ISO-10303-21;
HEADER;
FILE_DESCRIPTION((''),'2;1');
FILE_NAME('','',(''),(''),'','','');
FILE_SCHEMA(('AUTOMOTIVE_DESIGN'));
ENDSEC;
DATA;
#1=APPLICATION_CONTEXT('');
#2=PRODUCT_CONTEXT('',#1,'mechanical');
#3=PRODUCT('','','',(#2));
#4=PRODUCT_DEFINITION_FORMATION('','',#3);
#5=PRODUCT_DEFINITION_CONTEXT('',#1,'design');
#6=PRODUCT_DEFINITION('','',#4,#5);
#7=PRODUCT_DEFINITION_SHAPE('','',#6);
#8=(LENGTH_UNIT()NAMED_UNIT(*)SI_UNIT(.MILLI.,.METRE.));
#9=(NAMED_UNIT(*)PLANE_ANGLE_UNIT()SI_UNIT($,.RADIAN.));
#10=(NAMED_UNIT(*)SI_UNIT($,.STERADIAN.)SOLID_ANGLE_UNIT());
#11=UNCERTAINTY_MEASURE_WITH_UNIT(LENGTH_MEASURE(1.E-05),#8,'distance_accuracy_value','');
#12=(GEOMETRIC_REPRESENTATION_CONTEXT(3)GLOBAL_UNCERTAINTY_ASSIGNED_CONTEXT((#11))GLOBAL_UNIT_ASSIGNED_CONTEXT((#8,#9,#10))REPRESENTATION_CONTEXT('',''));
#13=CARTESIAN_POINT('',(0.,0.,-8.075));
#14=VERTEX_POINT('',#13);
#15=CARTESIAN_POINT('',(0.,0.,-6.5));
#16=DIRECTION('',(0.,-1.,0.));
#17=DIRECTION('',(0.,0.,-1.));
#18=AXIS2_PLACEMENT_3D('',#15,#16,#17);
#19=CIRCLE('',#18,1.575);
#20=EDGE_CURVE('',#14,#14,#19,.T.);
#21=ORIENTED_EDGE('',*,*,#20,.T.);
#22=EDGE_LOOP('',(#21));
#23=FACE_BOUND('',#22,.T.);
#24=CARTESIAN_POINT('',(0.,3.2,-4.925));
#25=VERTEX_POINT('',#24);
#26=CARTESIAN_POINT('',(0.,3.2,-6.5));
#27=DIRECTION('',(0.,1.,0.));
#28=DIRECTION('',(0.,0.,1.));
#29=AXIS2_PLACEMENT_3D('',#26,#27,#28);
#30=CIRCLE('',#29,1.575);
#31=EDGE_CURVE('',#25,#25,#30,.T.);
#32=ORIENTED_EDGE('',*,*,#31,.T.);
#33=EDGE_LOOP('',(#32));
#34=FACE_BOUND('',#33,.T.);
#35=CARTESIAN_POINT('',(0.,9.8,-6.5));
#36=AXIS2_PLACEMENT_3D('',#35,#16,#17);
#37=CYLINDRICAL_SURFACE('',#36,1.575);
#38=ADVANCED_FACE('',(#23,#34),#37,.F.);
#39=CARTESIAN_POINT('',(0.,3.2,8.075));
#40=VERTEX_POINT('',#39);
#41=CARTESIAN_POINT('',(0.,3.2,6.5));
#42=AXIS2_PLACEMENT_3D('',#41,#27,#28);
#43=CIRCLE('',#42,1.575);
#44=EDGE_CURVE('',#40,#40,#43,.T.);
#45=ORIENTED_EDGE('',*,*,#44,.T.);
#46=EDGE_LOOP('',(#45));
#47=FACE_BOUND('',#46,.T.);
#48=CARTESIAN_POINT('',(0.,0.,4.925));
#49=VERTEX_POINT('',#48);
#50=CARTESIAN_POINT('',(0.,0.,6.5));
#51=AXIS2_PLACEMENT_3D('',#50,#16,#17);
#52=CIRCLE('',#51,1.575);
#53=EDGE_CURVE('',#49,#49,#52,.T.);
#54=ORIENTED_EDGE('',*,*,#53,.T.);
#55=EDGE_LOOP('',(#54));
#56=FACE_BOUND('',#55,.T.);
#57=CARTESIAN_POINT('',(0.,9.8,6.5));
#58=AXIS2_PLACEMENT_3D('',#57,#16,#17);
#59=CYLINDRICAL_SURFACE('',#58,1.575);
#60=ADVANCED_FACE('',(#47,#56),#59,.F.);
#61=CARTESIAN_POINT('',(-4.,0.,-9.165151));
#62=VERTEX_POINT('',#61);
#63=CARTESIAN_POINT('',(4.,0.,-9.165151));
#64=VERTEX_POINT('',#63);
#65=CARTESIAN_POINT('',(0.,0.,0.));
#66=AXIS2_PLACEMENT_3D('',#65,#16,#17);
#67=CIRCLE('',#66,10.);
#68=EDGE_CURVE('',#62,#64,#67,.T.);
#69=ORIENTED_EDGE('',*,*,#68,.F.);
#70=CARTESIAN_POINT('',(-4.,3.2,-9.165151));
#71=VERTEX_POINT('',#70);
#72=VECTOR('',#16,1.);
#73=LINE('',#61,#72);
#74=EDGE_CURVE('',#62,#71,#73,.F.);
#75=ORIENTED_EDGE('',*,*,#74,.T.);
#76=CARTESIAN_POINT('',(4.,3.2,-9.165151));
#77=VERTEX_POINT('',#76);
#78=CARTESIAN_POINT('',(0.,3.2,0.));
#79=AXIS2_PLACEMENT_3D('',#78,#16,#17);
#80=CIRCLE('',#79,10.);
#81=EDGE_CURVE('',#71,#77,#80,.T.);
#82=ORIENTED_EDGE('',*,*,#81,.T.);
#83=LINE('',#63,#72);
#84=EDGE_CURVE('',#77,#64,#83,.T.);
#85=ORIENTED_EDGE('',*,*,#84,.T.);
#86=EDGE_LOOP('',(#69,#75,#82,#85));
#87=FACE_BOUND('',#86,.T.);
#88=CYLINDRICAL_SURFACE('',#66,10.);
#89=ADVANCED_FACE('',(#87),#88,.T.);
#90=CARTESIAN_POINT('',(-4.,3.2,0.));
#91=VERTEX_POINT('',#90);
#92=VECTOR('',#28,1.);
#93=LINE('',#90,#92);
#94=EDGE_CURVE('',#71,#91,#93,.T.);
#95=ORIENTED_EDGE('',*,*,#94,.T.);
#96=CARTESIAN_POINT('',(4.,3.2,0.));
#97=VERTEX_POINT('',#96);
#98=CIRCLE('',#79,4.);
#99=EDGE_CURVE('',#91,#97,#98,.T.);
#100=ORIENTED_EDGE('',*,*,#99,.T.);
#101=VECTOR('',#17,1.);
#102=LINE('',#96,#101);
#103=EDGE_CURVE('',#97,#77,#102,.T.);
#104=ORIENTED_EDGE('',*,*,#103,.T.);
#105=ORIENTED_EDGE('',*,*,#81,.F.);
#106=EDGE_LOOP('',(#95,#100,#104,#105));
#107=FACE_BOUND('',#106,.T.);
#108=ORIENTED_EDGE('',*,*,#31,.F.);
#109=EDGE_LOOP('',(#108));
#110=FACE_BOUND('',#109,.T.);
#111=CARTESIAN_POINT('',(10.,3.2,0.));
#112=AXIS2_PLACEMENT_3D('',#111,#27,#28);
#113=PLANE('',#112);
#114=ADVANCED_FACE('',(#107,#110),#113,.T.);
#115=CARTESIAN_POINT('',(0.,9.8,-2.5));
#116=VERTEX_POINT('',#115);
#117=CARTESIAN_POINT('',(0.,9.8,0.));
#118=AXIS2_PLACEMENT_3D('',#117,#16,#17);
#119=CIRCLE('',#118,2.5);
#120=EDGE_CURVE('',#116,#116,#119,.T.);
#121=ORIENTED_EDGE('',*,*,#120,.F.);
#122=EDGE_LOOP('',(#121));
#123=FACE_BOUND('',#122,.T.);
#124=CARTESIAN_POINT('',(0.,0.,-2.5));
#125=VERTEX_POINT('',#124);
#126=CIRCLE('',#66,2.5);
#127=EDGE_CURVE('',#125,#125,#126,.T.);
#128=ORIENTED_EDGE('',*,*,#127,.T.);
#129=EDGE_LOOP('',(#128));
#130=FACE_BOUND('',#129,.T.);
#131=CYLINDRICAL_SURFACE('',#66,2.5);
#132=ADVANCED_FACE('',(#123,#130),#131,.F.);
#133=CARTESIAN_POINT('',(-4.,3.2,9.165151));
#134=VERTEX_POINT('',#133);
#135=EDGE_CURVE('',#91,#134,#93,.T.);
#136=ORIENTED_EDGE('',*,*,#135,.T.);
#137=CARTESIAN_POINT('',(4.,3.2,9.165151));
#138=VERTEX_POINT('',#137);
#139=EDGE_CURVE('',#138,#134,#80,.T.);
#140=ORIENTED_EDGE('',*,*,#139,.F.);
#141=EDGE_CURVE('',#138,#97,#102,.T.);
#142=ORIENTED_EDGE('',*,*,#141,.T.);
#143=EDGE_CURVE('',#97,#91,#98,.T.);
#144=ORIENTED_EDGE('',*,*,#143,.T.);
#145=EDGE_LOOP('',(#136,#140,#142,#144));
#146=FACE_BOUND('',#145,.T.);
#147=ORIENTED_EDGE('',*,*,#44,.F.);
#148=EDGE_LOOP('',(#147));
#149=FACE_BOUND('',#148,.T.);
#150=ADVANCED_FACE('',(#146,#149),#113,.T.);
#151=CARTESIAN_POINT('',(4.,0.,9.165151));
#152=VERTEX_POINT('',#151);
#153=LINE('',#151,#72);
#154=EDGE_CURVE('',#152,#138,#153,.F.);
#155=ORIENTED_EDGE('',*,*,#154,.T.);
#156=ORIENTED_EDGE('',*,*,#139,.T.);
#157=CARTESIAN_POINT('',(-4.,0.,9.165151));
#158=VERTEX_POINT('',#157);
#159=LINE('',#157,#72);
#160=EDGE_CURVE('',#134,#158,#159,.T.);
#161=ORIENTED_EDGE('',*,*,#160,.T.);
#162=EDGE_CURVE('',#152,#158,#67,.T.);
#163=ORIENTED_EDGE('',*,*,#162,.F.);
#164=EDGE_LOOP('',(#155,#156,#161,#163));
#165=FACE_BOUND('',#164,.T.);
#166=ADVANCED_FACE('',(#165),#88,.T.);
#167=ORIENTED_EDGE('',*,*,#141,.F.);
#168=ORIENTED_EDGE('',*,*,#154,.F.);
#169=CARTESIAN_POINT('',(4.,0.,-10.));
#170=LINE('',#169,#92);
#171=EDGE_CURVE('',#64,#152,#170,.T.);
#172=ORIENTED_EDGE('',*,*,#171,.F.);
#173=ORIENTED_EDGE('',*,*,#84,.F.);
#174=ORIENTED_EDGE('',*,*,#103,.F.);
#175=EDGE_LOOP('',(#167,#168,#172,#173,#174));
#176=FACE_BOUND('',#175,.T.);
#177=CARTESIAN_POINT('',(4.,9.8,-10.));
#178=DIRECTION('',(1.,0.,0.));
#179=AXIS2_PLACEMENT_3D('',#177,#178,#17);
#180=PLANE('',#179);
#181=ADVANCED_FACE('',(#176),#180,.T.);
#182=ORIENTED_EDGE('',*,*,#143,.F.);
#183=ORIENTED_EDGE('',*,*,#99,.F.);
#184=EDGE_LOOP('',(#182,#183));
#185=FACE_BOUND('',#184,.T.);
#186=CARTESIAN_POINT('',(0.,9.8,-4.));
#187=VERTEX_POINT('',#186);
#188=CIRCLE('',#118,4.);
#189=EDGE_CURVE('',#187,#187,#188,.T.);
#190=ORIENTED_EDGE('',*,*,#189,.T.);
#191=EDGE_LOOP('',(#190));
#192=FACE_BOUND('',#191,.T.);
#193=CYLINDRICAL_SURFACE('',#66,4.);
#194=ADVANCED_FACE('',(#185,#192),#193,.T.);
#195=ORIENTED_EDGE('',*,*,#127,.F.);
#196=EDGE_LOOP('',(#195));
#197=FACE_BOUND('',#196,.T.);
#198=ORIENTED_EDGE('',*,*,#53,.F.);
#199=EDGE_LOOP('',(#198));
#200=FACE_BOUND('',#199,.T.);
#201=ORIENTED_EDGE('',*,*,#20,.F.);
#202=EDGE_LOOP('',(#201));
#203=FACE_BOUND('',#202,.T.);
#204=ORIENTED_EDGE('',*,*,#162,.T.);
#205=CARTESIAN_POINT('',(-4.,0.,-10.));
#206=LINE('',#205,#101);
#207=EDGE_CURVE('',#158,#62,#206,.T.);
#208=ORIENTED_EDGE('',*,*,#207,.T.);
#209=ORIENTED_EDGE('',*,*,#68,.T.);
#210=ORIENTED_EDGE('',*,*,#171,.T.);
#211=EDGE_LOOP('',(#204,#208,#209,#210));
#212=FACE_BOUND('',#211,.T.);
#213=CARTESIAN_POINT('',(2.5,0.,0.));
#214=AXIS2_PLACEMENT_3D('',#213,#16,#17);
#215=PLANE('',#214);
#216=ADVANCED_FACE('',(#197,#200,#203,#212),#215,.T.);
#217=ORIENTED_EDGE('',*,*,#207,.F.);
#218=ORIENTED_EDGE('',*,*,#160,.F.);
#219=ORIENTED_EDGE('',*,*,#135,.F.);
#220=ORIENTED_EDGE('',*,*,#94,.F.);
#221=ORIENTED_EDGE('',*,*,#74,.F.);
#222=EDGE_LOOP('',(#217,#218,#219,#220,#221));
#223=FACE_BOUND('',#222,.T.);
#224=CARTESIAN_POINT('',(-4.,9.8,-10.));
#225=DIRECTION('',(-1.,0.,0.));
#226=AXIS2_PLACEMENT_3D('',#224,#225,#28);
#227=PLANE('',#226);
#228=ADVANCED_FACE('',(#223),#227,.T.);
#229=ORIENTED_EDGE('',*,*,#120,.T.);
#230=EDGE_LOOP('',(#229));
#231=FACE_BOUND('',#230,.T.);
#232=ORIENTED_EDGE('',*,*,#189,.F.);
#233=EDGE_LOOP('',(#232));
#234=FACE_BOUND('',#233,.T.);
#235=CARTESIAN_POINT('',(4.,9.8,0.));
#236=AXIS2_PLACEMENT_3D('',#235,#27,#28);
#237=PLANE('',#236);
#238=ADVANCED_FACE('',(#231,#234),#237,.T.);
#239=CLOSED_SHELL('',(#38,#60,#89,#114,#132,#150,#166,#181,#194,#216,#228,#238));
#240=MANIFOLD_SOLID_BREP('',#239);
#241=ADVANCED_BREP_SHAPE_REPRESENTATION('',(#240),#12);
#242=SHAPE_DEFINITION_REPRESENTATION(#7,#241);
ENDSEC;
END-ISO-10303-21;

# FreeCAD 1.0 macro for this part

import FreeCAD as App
import Part
import Sketcher
from FreeCAD import Vector
Q = App.Units.Quantity


def add_polygon(sketch, points):
    """Adds a closed chain of lines whose ends are joined by coincident constraints."""
    first, n = sketch.GeometryCount, len(points)
    for a, b in zip(points, points[1:] + points[:1]):
        sketch.addGeometry(Part.LineSegment(App.Vector(*a, 0), App.Vector(*b, 0)), False)
    for i in range(n):
        sketch.addConstraint(Sketcher.Constraint("Coincident", first + i, 2, first + (i + 1) % n, 1))

doc = App.newDocument("Part")
params = doc.addObject("Spreadsheet::Sheet", "Params")
for row, (alias, value) in enumerate([
    ("sketch1_width", "6 mm"),
    ("sketch1_width2", "7.5 mm"),
    ("sketch1_height", "3.2 mm"),
    ("sketch1_height2", "6.6 mm"),
    ("revolution_angle", "360 deg"),
    ("sketch2_diameter", "3.15 mm"),
    ("sketch3_width", "8 mm"),
    ("sketch3_height", "20 mm"),
], start=1):
    params.set(f"A{row}", alias)
    params.set(f"B{row}", "=" + value)
    params.setAlias(f"B{row}", alias)

body = doc.addObject("PartDesign::Body", "Body")

# Sketch on XY plane
sketch1 = doc.addObject("Sketcher::SketchObject", "Sketch")
body.addObject(sketch1)
sketch1.AttachmentSupport = (doc.XY_Plane, [""])
sketch1.MapMode = "FlatFace"
add_polygon(sketch1, [(2.5, 0), (10, 0), (10, 3.2), (4, 3.2), (4, 9.8), (2.5, 9.8)])  # lines 0-5
sketch1.addConstraint([
    Sketcher.Constraint("Horizontal", 0),
    Sketcher.Constraint("Vertical", 1),
    Sketcher.Constraint("Horizontal", 2),
    Sketcher.Constraint("Vertical", 3),
    Sketcher.Constraint("Horizontal", 4),
    Sketcher.Constraint("Vertical", 5),
    Sketcher.Constraint("PointOnObject", 0, 2, -1),
    Sketcher.Constraint("DistanceX", 2, 2, 2, 1, Q("6 mm")),
    Sketcher.Constraint("DistanceX", 0, 1, 0, 2, Q("7.5 mm")),
    Sketcher.Constraint("DistanceY", 1, 1, 1, 2, Q("3.2 mm")),
    Sketcher.Constraint("DistanceY", 3, 1, 3, 2, Q("6.6 mm")),
    Sketcher.Constraint("DistanceX", -1, 1, 0, 2, Q("10 mm")),
])
sketch1.setExpression("Constraints[13]", "Params.sketch1_width")
sketch1.setExpression("Constraints[14]", "Params.sketch1_width2")
sketch1.setExpression("Constraints[15]", "Params.sketch1_height")
sketch1.setExpression("Constraints[16]", "Params.sketch1_height2")
revolution = doc.addObject("PartDesign::Revolution", "Revolution")
body.addObject(revolution)
revolution.Profile = sketch1
revolution.ReferenceAxis = (sketch1, ["V_Axis"])
revolution.setExpression("Angle", "Params.revolution_angle")

# Sketch on XZ plane
sketch2 = doc.addObject("Sketcher::SketchObject", "Sketch001")
body.addObject(sketch2)
sketch2.AttachmentSupport = (doc.XZ_Plane, [""])
sketch2.MapMode = "FlatFace"
sketch2.addGeometry([
    Part.Circle(Vector(0, 6.5, 0), Vector(0, 0, 1), 1.6),
    Part.Circle(Vector(5.6, -3.2, 0), Vector(0, 0, 1), 1.6),
    Part.Circle(Vector(-5.6, -3.2, 0), Vector(0, 0, 1), 1.6),
    Part.Circle(Vector(0, -6.5, 0), Vector(0, 0, 1), 1.6),
], False)
sketch2.addConstraint([
    Sketcher.Constraint("Equal", 0, 1),
    Sketcher.Constraint("Equal", 1, 2),
    Sketcher.Constraint("Equal", 2, 3),
    Sketcher.Constraint("Symmetric", 0, 3, 3, 3, -1, 1),
    Sketcher.Constraint("Symmetric", 1, 3, 2, 3, -2),
    Sketcher.Constraint("PointOnObject", 0, 3, -2),
    Sketcher.Constraint("Diameter", 0, Q("3.15 mm")),
    Sketcher.Constraint("DistanceY", 3, 3, 0, 3, Q("13 mm")),
    Sketcher.Constraint("DistanceY", 1, 3, -1, 1, Q("3.25 mm")),
    Sketcher.Constraint("DistanceX", 2, 3, 1, 3, Q("11.25833 mm")),
])
sketch2.setExpression("Constraints[6]", "Params.sketch2_diameter")
pocket1 = doc.addObject("PartDesign::Pocket", "Pocket")
body.addObject(pocket1)
pocket1.Profile = sketch2
pocket1.Type = "ThroughAll"

# Sketch on XZ plane
sketch3 = doc.addObject("Sketcher::SketchObject", "Sketch002")
body.addObject(sketch3)
sketch3.AttachmentSupport = (doc.XZ_Plane, [""])
sketch3.MapMode = "FlatFace"
add_polygon(sketch3, [(-14, 14), (-14, -14), (14, -14), (14, 14)])  # lines 0-3
add_polygon(sketch3, [(4, -10), (-4, -10), (-4, 10), (4, 10)])  # lines 4-7
sketch3.addConstraint([
    Sketcher.Constraint("Vertical", 0),
    Sketcher.Constraint("Horizontal", 1),
    Sketcher.Constraint("Vertical", 2),
    Sketcher.Constraint("Horizontal", 3),
    Sketcher.Constraint("Horizontal", 4),
    Sketcher.Constraint("Vertical", 5),
    Sketcher.Constraint("Horizontal", 6),
    Sketcher.Constraint("Vertical", 7),
    Sketcher.Constraint("Symmetric", 0, 2, 2, 2, -1, 1),
    Sketcher.Constraint("Symmetric", 4, 2, 6, 2, -1, 1),
    Sketcher.Constraint("Equal", 3, 0),
    Sketcher.Constraint("DistanceX", 4, 2, 4, 1, Q("8 mm")),
    Sketcher.Constraint("DistanceY", 5, 1, 5, 2, Q("20 mm")),
    Sketcher.Constraint("DistanceX", 1, 1, 1, 2, Q("27.986 mm")),
])
sketch3.setExpression("Constraints[19]", "Params.sketch3_width")
sketch3.setExpression("Constraints[20]", "Params.sketch3_height")
pocket2 = doc.addObject("PartDesign::Pocket", "Pocket001")
body.addObject(pocket2)
pocket2.Profile = sketch3
pocket2.Type = "ThroughAll"

doc.recompute()
